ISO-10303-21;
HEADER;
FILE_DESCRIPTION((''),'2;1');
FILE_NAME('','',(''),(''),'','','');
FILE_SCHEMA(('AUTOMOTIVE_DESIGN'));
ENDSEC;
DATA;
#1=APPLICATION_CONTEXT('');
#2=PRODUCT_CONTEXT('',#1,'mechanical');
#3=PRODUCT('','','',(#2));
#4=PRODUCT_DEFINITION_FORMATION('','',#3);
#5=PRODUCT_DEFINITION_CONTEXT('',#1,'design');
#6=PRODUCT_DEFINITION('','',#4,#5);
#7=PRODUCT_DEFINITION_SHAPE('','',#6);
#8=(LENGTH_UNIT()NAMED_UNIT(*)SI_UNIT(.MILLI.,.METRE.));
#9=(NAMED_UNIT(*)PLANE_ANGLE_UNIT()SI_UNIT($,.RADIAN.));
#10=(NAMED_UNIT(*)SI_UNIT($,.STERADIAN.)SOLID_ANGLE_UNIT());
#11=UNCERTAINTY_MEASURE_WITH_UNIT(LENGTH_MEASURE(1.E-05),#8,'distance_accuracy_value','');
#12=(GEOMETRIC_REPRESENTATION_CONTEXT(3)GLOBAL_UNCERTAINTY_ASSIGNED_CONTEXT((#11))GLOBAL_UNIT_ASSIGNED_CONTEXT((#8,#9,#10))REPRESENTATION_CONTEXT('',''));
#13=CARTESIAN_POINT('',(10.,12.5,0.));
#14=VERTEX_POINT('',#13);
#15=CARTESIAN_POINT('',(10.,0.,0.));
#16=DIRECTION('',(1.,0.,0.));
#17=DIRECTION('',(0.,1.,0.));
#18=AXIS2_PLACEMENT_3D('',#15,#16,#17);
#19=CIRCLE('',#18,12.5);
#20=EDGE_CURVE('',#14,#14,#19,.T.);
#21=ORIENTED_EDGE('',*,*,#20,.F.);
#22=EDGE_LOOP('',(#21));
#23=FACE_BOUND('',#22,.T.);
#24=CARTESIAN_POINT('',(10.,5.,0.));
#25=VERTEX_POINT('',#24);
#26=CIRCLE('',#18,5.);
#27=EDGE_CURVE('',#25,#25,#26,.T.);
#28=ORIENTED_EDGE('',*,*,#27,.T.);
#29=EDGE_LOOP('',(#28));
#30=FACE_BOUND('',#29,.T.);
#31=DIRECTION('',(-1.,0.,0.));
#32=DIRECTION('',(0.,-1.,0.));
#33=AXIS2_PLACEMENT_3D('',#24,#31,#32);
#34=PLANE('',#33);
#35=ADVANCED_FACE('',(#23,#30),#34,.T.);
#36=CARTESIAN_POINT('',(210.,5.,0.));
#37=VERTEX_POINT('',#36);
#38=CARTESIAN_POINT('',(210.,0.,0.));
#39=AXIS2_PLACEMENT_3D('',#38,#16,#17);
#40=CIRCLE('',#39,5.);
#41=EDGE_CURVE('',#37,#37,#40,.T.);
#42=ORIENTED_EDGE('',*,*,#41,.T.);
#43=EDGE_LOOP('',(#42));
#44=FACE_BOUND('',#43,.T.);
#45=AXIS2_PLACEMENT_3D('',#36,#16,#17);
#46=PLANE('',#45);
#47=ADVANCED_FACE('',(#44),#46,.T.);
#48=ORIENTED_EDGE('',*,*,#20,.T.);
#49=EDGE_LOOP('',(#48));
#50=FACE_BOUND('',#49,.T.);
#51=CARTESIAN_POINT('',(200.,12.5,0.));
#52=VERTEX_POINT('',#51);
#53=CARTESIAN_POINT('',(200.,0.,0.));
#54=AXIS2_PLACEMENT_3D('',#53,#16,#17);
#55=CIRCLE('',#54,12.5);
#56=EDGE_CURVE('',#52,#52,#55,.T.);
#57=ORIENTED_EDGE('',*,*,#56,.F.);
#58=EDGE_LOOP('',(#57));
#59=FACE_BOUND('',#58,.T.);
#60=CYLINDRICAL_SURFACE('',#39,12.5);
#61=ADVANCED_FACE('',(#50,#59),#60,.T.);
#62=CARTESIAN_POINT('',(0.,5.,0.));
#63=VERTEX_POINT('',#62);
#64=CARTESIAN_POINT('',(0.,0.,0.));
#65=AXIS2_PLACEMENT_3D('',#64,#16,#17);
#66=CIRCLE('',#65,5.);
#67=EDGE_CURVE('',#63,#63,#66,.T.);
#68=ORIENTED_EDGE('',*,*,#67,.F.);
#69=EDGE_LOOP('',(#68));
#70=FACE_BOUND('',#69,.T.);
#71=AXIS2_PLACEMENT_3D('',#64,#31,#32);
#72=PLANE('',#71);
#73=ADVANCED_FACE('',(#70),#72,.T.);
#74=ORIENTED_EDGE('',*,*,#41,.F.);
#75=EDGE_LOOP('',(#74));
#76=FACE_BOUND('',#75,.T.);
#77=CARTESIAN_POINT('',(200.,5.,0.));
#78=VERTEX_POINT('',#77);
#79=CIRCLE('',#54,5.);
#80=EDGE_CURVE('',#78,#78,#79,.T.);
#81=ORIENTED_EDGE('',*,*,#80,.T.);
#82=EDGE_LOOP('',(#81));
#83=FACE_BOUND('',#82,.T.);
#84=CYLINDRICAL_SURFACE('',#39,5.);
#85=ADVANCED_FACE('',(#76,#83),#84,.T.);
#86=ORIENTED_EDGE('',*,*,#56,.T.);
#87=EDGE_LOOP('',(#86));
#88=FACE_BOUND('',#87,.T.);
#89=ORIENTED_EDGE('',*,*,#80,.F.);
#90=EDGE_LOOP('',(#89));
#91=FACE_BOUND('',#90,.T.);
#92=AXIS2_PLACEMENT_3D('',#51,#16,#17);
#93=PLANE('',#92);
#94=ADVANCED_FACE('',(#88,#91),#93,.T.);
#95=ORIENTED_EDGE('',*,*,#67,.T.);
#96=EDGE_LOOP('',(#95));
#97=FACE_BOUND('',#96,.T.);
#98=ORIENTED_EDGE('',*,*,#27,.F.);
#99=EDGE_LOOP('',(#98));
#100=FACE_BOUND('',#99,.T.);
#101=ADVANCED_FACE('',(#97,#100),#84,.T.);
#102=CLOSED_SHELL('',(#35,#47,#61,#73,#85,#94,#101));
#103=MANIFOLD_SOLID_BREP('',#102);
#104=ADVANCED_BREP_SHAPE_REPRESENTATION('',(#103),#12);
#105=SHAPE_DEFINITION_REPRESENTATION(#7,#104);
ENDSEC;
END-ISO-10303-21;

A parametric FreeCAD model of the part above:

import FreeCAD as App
import Part
import Sketcher

V = App.Vector

doc = App.newDocument("Part")
body = doc.addObject("PartDesign::Body", "Body")

# Sketch on XY plane
sketch1 = doc.addObject("Sketcher::SketchObject", "Sketch")
body.addObject(sketch1)
sketch1.AttachmentSupport = (doc.XY_Plane, [""])
sketch1.MapMode = "FlatFace"
sketch1.addGeometry([
    Part.LineSegment(V(0, 5, 0), V(0, 0, 0)),  # 0
    Part.LineSegment(V(0, 0, 0), V(210, 0, 0)),  # 1
    Part.LineSegment(V(210, 0, 0), V(210, 5, 0)),  # 2
    Part.LineSegment(V(210, 5, 0), V(200, 5, 0)),  # 3
    Part.LineSegment(V(200, 5, 0), V(200, 12, 0)),  # 4
    Part.LineSegment(V(200, 12, 0), V(10, 12, 0)),  # 5
    Part.LineSegment(V(10, 12, 0), V(10, 5, 0)),  # 6
    Part.LineSegment(V(10, 5, 0), V(0, 5, 0)),  # 7
], False)
sketch1.addConstraint([
    Sketcher.Constraint("Coincident", 0, 2, 1, 1),
    Sketcher.Constraint("Coincident", 1, 2, 2, 1),
    Sketcher.Constraint("Coincident", 2, 2, 3, 1),
    Sketcher.Constraint("Coincident", 3, 2, 4, 1),
    Sketcher.Constraint("Coincident", 4, 2, 5, 1),
    Sketcher.Constraint("Coincident", 5, 2, 6, 1),
    Sketcher.Constraint("Coincident", 6, 2, 7, 1),
    Sketcher.Constraint("Coincident", 7, 2, 0, 1),
    Sketcher.Constraint("Vertical", 0),
    Sketcher.Constraint("Horizontal", 1),
    Sketcher.Constraint("Vertical", 2),
    Sketcher.Constraint("Horizontal", 3),
    Sketcher.Constraint("Vertical", 4),
    Sketcher.Constraint("Horizontal", 5),
    Sketcher.Constraint("Vertical", 6),
    Sketcher.Constraint("Horizontal", 7),
    Sketcher.Constraint("Coincident", 0, 2, -1, 1),
    Sketcher.Constraint("Horizontal", 3, 2, 6, 2),
    Sketcher.Constraint("Equal", 3, 7),
    Sketcher.Constraint("DistanceX", 1, 1, 1, 2, 210.0),
    Sketcher.Constraint("DistanceX", 3, 2, 3, 1, 10.0),
    Sketcher.Constraint("DistanceY", 0, 2, 0, 1, 5.0),
    Sketcher.Constraint("DistanceY", 4, 1, 4, 2, 7.5),
])
revolution = doc.addObject("PartDesign::Revolution", "Revolution")
body.addObject(revolution)
revolution.Profile = sketch1
revolution.ReferenceAxis = (sketch1, ["H_Axis"])
revolution.Angle = 360

doc.recompute()
